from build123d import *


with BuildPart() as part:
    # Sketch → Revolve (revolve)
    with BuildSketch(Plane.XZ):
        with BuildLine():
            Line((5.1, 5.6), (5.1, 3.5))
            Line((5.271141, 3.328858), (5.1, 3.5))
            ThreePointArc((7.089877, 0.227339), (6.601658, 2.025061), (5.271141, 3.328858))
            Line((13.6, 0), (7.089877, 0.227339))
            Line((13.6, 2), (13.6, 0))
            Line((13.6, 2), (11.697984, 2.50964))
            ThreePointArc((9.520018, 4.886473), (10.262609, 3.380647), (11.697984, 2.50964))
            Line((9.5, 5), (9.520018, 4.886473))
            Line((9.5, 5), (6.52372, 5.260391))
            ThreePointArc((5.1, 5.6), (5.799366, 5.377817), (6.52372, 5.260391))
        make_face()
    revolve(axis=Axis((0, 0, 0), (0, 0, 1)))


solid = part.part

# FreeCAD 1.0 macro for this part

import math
import FreeCAD as App
import Part
import Sketcher
from FreeCAD import Vector
Q = App.Units.Quantity

doc = App.newDocument("Part")
body = doc.addObject("PartDesign::Body", "Body")

# Sketch on XZ plane
sketch1 = body.newObject("Sketcher::SketchObject", "Sketch")
sketch1.AttachmentSupport = (doc.getObject("XZ_Plane"), [""])
sketch1.MapMode = "FlatFace"
sketch1.addGeometry(Part.LineSegment(Vector(5.1, 5.6, 0), Vector(5.1, 3.5, 0)), False)
sketch1.addGeometry(Part.LineSegment(Vector(5.1, 3.5, 0), Vector(5.271141, 3.328858, 0)), False)
sketch1.addGeometry(Part.ArcOfCircle(Part.Circle(Vector(3.535972, 0.227337, 0), Vector(0, 0, 1), 3.553905), math.radians(0.000027), math.radians(60.774837)), False)
sketch1.addGeometry(Part.LineSegment(Vector(7.089877, 0.227339, 0), Vector(13.6, 0, 0)), False)
sketch1.addGeometry(Part.LineSegment(Vector(13.6, 0, 0), Vector(13.6, 2, 0)), False)
sketch1.addGeometry(Part.LineSegment(Vector(13.6, 2, 0), Vector(11.697984, 2.50964, 0)), False)
sketch1.addGeometry(Part.ArcOfCircle(Part.Circle(Vector(12.474441, 5.407417, 0), Vector(0, 0, 1), 3), math.radians(-170.000007), math.radians(-104.999998)), False)
sketch1.addGeometry(Part.LineSegment(Vector(9.520018, 4.886473, 0), Vector(9.5, 5, 0)), False)
sketch1.addGeometry(Part.LineSegment(Vector(9.5, 5, 0), Vector(6.52372, 5.260391, 0)), False)
sketch1.addGeometry(Part.ArcOfCircle(Part.Circle(Vector(6.959494, 10.241345, 0), Vector(0, 0, 1), 4.99998), math.radians(-111.832862), math.radians(-94.999966)), False)
sketch1.addConstraint(Sketcher.Constraint("Coincident", 0, 2, 1, 1))
sketch1.addConstraint(Sketcher.Constraint("Coincident", 1, 2, 2, 2))
sketch1.addConstraint(Sketcher.Constraint("Coincident", 2, 1, 3, 1))
sketch1.addConstraint(Sketcher.Constraint("Coincident", 3, 2, 4, 1))
sketch1.addConstraint(Sketcher.Constraint("Coincident", 4, 2, 5, 1))
sketch1.addConstraint(Sketcher.Constraint("Coincident", 5, 2, 6, 2))
sketch1.addConstraint(Sketcher.Constraint("Coincident", 6, 1, 7, 1))
sketch1.addConstraint(Sketcher.Constraint("Coincident", 7, 2, 8, 1))
sketch1.addConstraint(Sketcher.Constraint("Coincident", 8, 2, 9, 2))
sketch1.addConstraint(Sketcher.Constraint("Coincident", 9, 1, 0, 1))
sketch1.addConstraint(Sketcher.Constraint("Vertical", 0))
sketch1.addConstraint(Sketcher.Constraint("Vertical", 4))
sketch1.addConstraint(Sketcher.Constraint("PointOnObject", 3, 2, -1))
sketch1.addConstraint(Sketcher.Constraint("Radius", 6, Q("3 mm")))
sketch1.addConstraint(Sketcher.Constraint("DistanceY", 4, 1, 4, 2, Q("2 mm")))
sketch1.addConstraint(Sketcher.Constraint("DistanceY", 0, 2, 0, 1, Q("2.1 mm")))
sketch1.addConstraint(Sketcher.Constraint("DistanceY", -1, 1, 7, 2, Q("5 mm")))
sketch1.addConstraint(Sketcher.Constraint("DistanceX", -1, 1, 0, 2, Q("5.1 mm")))
sketch1.addConstraint(Sketcher.Constraint("DistanceY", -1, 1, 0, 2, Q("3.5 mm")))
sketch1.addConstraint(Sketcher.Constraint("DistanceX", -1, 1, 3, 2, Q("13.6 mm")))
sketch1.addConstraint(Sketcher.Constraint("DistanceX", -1, 1, 7, 2, Q("9.5 mm")))
sketch1.addConstraint(Sketcher.Constraint("Radius", 9, Q("4.99998 mm")))
sketch1.addConstraint(Sketcher.Constraint("Radius", 2, Q("3.553905 mm")))
sketch1.addConstraint(Sketcher.Constraint("DistanceX", 1, 2, 6, 3, Q("7.2033 mm")))
sketch1.addConstraint(Sketcher.Constraint("DistanceY", 2, 1, 5, 2, Q("2.282301 mm")))
sketch1.addConstraint(Sketcher.Constraint("Distance", 1, Q("0.242031 mm")))
sketch1.addConstraint(Sketcher.Constraint("Distance", 3, Q("6.514091 mm")))
sketch1.addConstraint(Sketcher.Constraint("Distance", 5, Q("1.969111 mm")))
sketch1.addConstraint(Sketcher.Constraint("Distance", 7, Q("0.115278 mm")))
sketch1.addConstraint(Sketcher.Constraint("Distance", 8, Q("2.987649 mm")))
sketch1.addConstraint(Sketcher.Constraint("DistanceX", -1, 1, 2, 3, Q("3.535972 mm")))
sketch1.addConstraint(Sketcher.Constraint("DistanceX", -1, 1, 6, 3, Q("12.474441 mm")))
sketch1.addConstraint(Sketcher.Constraint("DistanceX", -1, 1, 8, 2, Q("6.52372 mm")))
revolution = body.newObject("PartDesign::Revolution", "Revolution")
revolution.Profile = sketch1
revolution.ReferenceAxis = (sketch1, ["V_Axis"])
revolution.Angle = 360

doc.recompute()
